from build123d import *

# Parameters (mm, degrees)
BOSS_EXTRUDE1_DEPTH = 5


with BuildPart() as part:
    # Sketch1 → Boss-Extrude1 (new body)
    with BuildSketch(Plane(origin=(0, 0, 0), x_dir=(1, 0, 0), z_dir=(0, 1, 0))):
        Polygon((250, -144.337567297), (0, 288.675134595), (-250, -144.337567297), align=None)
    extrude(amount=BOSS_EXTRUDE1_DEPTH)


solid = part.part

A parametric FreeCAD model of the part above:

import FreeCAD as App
import Part
import Sketcher

V = App.Vector
Q = App.Units.Quantity

doc = App.newDocument("Part")
body = doc.addObject("PartDesign::Body", "Body")

sketch1 = doc.addObject("Sketcher::SketchObject", "Sketch")
body.addObject(sketch1)
sketch1.AttachmentSupport = (doc.XZ_Plane, [""])
sketch1.MapMode = "FlatFace"
sketch1.addGeometry([
    Part.LineSegment(V(250, 144, 0), V(0, -289, 0)),
    Part.LineSegment(V(0, -289, 0), V(-250, 144, 0)),
    Part.LineSegment(V(-250, 144, 0), V(250, 144, 0)),
], False)
sketch1.addConstraint([
    Sketcher.Constraint("Coincident", 0, 2, 1, 1),
    Sketcher.Constraint("Coincident", 1, 2, 2, 1),
    Sketcher.Constraint("Coincident", 2, 2, 0, 1),
    Sketcher.Constraint("Horizontal", 2),
    Sketcher.Constraint("PointOnObject", 0, 2, -2),
    Sketcher.Constraint("Equal", 0, 1),
    Sketcher.Constraint("DistanceX", 2, 1, 2, 2, 500.0),
    Sketcher.Constraint("Angle", 0, Q("-120 deg")),
    Sketcher.Constraint("DistanceY", 0, 2, -1, 1, 288.675135),
])
pad1 = doc.addObject("PartDesign::Pad", "Pad")
body.addObject(pad1)
pad1.Profile = sketch1
pad1.Length = 5
pad1.Reversed = True

doc.recompute()
